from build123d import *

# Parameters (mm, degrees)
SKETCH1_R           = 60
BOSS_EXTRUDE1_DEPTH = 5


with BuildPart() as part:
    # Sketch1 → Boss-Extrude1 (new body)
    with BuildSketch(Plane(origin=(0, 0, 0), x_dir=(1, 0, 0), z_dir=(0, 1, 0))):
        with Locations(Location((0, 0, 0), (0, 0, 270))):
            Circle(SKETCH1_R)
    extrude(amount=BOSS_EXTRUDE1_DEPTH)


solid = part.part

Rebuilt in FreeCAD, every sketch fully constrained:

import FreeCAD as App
import Part
import Sketcher
from FreeCAD import Vector
Q = App.Units.Quantity

doc = App.newDocument("Part")
body = doc.addObject("PartDesign::Body", "Body")

sketch1 = body.newObject("Sketcher::SketchObject", "Sketch")
sketch1.AttachmentSupport = (doc.getObject("XZ_Plane"), [""])
sketch1.MapMode = "FlatFace"
sketch1.addGeometry(Part.Circle(Vector(0, 0, 0), Vector(0, 0, 1), 60), False)
sketch1.addConstraint(Sketcher.Constraint("Coincident", 0, 3, -1, 1))
sketch1.addConstraint(Sketcher.Constraint("Diameter", 0, Q("120 mm")))
pad1 = body.newObject("PartDesign::Pad", "Pad")
pad1.Profile = sketch1
pad1.Length = 5
pad1.Reversed = True

doc.recompute()
